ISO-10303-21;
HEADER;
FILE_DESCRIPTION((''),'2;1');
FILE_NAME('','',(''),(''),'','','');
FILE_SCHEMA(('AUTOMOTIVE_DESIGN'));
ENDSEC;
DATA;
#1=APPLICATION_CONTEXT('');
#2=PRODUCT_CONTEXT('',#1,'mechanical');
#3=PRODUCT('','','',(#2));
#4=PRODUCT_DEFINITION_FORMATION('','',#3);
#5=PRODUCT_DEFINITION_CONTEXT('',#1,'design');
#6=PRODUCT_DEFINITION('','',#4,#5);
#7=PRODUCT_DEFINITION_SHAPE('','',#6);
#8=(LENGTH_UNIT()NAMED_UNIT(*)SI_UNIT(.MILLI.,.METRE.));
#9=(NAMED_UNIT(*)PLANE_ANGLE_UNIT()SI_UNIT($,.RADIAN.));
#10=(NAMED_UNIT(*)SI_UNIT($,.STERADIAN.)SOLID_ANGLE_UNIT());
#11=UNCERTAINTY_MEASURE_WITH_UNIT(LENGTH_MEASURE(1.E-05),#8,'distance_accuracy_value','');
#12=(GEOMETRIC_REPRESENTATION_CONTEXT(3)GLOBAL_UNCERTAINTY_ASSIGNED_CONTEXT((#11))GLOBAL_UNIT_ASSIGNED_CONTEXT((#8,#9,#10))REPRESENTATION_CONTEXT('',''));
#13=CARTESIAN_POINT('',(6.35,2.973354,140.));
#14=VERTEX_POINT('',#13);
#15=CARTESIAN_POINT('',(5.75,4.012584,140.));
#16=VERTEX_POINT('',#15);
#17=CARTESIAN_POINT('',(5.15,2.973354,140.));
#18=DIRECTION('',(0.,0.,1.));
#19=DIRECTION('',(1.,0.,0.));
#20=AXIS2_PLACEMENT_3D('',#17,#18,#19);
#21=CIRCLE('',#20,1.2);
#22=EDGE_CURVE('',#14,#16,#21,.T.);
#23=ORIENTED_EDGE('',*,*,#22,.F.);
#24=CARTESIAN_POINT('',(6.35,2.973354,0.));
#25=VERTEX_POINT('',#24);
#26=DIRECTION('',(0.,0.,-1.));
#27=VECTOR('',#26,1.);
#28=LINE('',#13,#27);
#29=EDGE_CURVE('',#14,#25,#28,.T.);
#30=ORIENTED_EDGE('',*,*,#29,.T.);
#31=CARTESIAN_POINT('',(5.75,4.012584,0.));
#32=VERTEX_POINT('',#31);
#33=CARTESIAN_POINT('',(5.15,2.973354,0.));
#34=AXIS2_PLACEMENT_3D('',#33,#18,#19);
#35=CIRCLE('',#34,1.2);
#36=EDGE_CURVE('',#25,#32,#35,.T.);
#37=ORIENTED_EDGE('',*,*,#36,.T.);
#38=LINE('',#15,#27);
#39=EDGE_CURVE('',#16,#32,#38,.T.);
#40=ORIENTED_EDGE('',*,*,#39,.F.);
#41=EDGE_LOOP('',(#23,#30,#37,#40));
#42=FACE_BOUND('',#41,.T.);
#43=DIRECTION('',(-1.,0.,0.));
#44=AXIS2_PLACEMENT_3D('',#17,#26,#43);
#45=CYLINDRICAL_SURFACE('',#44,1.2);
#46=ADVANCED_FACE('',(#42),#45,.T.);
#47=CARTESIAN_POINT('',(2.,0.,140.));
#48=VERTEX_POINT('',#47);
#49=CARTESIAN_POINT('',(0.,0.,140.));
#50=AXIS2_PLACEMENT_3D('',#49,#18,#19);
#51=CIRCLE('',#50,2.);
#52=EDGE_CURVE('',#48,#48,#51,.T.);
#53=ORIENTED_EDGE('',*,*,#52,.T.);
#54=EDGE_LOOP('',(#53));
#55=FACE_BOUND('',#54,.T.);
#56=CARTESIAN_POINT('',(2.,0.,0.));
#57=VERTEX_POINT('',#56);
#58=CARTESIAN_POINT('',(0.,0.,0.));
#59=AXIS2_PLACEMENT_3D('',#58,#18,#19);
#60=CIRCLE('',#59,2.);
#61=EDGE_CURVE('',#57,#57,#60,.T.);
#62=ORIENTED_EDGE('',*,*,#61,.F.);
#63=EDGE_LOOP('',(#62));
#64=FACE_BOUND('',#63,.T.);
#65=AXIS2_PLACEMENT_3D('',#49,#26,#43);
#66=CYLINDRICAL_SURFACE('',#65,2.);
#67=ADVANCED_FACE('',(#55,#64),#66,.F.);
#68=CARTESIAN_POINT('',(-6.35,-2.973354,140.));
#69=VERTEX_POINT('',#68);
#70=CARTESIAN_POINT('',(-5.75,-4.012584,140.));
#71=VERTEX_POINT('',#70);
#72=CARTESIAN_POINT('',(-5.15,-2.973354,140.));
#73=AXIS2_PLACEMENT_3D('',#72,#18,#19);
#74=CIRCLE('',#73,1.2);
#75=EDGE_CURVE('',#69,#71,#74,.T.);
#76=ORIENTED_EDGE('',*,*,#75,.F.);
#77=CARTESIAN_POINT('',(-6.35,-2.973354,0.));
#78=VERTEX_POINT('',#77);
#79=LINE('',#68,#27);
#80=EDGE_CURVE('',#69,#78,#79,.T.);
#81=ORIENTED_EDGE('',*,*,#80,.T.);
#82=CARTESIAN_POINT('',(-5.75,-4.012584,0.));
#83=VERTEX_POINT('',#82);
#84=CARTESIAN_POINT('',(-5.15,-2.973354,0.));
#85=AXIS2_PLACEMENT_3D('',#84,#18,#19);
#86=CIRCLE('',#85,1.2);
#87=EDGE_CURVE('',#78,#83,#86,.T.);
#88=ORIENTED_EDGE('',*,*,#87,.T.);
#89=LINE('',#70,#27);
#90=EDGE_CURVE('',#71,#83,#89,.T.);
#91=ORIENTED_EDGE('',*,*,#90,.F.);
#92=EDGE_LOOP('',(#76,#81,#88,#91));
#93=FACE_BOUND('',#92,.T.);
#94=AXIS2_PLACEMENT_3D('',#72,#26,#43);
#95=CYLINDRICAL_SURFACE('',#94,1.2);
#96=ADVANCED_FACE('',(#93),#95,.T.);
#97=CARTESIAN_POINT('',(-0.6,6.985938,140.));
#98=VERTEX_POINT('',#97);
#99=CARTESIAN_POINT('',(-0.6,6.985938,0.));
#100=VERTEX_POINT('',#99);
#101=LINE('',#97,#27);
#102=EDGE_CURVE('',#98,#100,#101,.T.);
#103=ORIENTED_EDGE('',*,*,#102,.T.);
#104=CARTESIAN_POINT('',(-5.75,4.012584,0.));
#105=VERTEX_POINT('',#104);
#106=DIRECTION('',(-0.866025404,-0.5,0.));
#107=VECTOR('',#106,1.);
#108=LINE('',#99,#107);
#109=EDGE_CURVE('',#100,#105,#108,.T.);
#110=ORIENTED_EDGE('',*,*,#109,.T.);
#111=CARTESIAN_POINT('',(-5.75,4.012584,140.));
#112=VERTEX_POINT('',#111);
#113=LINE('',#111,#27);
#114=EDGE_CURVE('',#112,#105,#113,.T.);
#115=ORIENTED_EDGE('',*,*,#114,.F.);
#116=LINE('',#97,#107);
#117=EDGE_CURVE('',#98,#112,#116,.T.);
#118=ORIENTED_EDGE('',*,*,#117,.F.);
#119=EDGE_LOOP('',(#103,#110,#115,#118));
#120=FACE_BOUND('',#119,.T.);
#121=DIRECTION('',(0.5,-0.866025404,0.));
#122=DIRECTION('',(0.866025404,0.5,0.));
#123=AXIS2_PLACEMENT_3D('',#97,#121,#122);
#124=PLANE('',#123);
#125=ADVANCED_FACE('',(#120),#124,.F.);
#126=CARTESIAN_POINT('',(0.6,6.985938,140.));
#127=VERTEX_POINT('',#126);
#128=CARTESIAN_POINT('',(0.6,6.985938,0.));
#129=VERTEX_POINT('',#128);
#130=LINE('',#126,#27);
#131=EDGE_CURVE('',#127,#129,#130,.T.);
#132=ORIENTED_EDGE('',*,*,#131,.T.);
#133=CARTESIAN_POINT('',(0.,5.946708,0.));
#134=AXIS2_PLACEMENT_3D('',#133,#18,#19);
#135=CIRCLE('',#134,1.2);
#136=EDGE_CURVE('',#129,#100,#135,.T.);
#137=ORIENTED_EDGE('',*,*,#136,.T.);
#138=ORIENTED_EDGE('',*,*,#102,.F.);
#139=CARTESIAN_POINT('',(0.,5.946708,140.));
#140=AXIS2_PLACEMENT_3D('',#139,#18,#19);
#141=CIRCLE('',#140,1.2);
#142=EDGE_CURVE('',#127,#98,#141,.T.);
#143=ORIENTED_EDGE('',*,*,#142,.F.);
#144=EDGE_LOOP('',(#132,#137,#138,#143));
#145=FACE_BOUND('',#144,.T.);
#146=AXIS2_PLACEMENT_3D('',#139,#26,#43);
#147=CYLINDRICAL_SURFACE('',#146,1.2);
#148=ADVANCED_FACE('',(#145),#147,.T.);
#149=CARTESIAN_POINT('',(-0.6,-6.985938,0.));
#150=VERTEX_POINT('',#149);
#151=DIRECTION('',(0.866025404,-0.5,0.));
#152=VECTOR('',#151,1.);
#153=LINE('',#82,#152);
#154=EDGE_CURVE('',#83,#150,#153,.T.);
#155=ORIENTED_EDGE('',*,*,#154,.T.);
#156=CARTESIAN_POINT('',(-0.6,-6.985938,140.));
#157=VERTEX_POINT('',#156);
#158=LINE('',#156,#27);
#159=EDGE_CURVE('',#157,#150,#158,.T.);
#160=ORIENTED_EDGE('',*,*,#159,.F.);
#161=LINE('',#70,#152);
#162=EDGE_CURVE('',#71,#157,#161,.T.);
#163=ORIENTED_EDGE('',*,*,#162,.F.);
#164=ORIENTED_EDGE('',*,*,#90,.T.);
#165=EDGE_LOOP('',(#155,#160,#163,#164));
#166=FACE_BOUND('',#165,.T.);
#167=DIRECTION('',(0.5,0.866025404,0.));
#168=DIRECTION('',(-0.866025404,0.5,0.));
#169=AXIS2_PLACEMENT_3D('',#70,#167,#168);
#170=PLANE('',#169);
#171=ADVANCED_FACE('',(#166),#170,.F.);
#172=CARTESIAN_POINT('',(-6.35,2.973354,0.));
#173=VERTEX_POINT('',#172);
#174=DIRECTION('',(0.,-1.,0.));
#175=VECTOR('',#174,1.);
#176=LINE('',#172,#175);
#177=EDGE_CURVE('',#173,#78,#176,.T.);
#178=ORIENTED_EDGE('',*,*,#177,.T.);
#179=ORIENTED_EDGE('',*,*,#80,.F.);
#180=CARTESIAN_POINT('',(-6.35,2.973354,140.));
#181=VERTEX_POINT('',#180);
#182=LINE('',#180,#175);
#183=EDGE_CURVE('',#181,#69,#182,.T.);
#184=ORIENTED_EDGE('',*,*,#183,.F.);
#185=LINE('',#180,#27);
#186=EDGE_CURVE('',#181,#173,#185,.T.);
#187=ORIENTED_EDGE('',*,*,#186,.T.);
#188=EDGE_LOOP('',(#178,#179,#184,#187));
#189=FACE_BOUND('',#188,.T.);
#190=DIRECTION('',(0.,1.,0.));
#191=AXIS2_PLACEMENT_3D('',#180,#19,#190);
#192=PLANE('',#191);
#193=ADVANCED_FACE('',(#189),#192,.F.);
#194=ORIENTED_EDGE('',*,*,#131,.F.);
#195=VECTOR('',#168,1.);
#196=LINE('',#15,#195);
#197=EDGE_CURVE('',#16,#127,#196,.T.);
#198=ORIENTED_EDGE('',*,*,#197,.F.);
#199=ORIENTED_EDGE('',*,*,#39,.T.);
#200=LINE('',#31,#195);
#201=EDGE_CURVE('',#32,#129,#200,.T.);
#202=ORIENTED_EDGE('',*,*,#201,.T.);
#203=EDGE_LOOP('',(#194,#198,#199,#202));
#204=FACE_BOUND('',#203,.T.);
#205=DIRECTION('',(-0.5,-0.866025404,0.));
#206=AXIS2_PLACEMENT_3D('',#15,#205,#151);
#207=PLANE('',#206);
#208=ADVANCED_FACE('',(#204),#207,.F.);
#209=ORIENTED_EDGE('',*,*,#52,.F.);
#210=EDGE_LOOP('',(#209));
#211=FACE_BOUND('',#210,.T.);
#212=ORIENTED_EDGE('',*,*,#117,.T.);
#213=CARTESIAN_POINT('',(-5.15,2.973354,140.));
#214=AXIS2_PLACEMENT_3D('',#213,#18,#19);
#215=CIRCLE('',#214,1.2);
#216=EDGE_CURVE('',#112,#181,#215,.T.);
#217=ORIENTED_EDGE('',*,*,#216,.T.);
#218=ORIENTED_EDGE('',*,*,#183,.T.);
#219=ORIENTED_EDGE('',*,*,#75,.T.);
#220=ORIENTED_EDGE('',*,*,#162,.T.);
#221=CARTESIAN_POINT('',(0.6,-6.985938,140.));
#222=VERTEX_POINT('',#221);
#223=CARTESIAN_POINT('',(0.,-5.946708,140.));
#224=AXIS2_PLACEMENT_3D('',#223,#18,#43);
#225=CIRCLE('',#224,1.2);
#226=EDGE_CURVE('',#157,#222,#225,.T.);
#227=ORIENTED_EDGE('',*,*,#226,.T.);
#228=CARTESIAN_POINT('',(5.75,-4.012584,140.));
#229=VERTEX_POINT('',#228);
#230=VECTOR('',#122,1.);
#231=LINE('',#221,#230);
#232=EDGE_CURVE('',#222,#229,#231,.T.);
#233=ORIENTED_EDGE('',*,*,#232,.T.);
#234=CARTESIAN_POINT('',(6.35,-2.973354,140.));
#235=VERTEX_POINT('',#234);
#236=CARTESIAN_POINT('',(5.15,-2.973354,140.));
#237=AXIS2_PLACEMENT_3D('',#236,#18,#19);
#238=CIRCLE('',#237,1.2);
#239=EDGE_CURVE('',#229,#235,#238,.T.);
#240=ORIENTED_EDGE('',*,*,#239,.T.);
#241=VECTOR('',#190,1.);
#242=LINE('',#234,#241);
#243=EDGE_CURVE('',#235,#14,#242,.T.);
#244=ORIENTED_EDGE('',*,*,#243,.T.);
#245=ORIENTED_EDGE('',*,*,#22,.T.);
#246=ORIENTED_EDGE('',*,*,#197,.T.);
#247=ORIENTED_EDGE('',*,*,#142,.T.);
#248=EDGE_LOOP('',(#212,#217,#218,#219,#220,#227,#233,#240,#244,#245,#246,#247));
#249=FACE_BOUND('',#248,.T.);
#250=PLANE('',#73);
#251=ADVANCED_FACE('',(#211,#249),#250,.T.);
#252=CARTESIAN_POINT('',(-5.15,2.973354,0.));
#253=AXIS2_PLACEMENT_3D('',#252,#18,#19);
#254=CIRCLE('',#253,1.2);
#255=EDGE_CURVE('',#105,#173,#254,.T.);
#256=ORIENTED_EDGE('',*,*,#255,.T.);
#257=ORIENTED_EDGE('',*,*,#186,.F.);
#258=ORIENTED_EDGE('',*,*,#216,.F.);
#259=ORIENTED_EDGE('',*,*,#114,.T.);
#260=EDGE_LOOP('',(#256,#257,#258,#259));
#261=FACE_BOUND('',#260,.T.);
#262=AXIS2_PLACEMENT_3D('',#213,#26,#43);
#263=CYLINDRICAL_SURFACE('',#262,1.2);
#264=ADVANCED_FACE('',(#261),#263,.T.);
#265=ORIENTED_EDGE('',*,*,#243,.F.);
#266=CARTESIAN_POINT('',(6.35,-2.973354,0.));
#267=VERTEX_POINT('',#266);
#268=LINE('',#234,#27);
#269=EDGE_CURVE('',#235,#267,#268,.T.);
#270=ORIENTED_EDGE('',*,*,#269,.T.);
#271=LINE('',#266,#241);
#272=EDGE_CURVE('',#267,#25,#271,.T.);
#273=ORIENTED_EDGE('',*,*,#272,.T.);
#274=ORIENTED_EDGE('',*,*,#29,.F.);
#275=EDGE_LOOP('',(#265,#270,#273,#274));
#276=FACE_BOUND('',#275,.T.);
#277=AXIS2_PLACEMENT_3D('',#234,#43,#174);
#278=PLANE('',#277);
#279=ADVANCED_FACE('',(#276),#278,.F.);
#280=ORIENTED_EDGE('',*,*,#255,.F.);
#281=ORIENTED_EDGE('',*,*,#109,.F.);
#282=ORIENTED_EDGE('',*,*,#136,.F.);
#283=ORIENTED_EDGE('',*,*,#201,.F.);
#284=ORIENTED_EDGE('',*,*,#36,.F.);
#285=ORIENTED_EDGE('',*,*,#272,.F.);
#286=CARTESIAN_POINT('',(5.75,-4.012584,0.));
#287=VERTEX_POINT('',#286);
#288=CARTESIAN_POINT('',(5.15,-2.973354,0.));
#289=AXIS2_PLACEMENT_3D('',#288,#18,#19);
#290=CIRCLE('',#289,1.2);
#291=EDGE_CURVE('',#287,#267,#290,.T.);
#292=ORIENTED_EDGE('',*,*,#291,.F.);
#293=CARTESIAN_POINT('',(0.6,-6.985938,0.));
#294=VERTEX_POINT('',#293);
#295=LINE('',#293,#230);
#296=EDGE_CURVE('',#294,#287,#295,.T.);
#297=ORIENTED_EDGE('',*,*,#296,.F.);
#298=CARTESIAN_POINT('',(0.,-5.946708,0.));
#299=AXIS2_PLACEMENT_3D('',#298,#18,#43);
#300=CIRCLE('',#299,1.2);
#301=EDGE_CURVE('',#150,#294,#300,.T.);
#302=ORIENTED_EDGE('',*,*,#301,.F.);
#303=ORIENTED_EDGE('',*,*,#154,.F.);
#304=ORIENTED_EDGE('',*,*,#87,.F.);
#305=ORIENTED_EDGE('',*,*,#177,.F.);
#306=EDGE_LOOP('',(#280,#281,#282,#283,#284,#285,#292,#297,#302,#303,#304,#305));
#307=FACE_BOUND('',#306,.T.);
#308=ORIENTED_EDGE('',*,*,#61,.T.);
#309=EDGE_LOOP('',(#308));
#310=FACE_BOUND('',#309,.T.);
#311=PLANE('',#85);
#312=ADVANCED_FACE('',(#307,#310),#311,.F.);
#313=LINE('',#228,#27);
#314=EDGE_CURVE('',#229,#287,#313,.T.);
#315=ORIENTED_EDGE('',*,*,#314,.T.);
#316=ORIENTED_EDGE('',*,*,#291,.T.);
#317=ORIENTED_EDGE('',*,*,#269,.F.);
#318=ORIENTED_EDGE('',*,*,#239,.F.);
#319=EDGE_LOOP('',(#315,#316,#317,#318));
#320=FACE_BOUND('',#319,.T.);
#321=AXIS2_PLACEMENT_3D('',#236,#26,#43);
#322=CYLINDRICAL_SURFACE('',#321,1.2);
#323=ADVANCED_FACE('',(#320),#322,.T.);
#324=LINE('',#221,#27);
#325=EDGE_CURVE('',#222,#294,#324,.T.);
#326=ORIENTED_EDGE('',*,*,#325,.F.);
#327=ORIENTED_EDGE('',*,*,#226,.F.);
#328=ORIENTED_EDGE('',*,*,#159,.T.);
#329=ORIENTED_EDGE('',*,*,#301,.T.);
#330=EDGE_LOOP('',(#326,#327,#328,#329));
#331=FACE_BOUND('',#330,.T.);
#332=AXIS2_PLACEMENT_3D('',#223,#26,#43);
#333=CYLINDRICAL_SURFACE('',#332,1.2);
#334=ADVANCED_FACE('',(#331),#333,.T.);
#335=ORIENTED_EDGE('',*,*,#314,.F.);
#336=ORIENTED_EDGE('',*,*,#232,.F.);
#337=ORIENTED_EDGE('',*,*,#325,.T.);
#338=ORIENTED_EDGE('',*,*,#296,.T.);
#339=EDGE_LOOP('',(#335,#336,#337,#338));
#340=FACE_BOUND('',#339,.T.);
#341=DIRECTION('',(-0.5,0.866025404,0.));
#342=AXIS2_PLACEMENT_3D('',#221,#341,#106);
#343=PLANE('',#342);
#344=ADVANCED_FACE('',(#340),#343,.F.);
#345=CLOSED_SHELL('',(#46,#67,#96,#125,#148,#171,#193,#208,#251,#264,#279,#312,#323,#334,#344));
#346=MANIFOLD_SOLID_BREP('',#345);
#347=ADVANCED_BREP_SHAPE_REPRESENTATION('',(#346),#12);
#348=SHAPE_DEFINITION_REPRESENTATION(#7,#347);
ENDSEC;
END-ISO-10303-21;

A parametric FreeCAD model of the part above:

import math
import FreeCAD as App
import Part
import Sketcher

V = App.Vector
Q = App.Units.Quantity

doc = App.newDocument("Part")
body = doc.addObject("PartDesign::Body", "Body")

# Sketch on XY plane
sketch1 = body.newObject("Sketcher::SketchObject", "Sketch")
sketch1.AttachmentSupport = (doc.getObject("XY_Plane"), [""])
sketch1.MapMode = "FlatFace"
sketch1.addGeometry([
    Part.LineSegment(V(0.6, -7, 0), V(5.8, -4, 0)),  # 0
    Part.ArcOfCircle(Part.Circle(V(5.2, -3, 0), V(0, 0, 1), 1.2), math.radians(-60), math.radians(0)),  # 1
    Part.LineSegment(V(6.3, -3, 0), V(6.3, 3, 0)),  # 2
    Part.ArcOfCircle(Part.Circle(V(5.2, 3, 0), V(0, 0, 1), 1.2), math.radians(0), math.radians(60)),  # 3
    Part.LineSegment(V(5.8, 4, 0), V(0.6, 7, 0)),  # 4
    Part.ArcOfCircle(Part.Circle(V(0, 5.9, 0), V(0, 0, 1), 1.2), math.radians(60), math.radians(120)),  # 5
    Part.LineSegment(V(-0.6, 7, 0), V(-5.8, 4, 0)),  # 6
    Part.ArcOfCircle(Part.Circle(V(-5.2, 3, 0), V(0, 0, 1), 1.2), math.radians(120), math.radians(180)),  # 7
    Part.LineSegment(V(-6.3, 3, 0), V(-6.3, -3, 0)),  # 8
    Part.ArcOfCircle(Part.Circle(V(-5.2, -3, 0), V(0, 0, 1), 1.2), math.radians(180), math.radians(240)),  # 9
    Part.LineSegment(V(-5.8, -4, 0), V(-0.6, -7, 0)),  # 10
    Part.ArcOfCircle(Part.Circle(V(0, -5.9, 0), V(0, 0, 1), 1.2), math.radians(-120), math.radians(-60)),  # 11
    Part.Circle(V(0, 0, 0), V(0, 0, 1), 2),  # 12
], False)
sketch1.addConstraint([
    Sketcher.Constraint("Tangent", 0, 2, 1, 1),
    Sketcher.Constraint("Tangent", 1, 2, 2, 1),
    Sketcher.Constraint("Tangent", 2, 2, 3, 1),
    Sketcher.Constraint("Tangent", 3, 2, 4, 1),
    Sketcher.Constraint("Tangent", 4, 2, 5, 1),
    Sketcher.Constraint("Tangent", 5, 2, 6, 1),
    Sketcher.Constraint("Tangent", 6, 2, 7, 1),
    Sketcher.Constraint("Tangent", 7, 2, 8, 1),
    Sketcher.Constraint("Tangent", 8, 2, 9, 1),
    Sketcher.Constraint("Tangent", 9, 2, 10, 1),
    Sketcher.Constraint("Tangent", 10, 2, 11, 1),
    Sketcher.Constraint("Tangent", 11, 2, 0, 1),
    Sketcher.Constraint("Vertical", 2),
    Sketcher.Constraint("Vertical", 8),
    Sketcher.Constraint("Coincident", 12, 3, -1, 1),
    Sketcher.Constraint("Equal", 1, 3),
    Sketcher.Constraint("Equal", 3, 5),
    Sketcher.Constraint("Equal", 5, 7),
    Sketcher.Constraint("Equal", 7, 9),
    Sketcher.Constraint("Equal", 9, 11),
    Sketcher.Constraint("Symmetric", 1, 3, 7, 3, -1, 1),
    Sketcher.Constraint("Symmetric", 5, 3, 11, 3, -1, 1),
    Sketcher.Constraint("Symmetric", 4, 2, 5, 2, -2),
    Sketcher.Constraint("Parallel", 4, 10),
    Sketcher.Constraint("Diameter", 12, 4.0),
    Sketcher.Constraint("Radius", 1, 1.2),
    Sketcher.Constraint("Angle", 0, Q("30 deg")),
    Sketcher.Constraint("DistanceX", 7, 3, 3, 3, 10.3),
    Sketcher.Constraint("DistanceY", 2, 1, 2, 2, 5.946708),
])
pad1 = body.newObject("PartDesign::Pad", "Pad")
pad1.Profile = sketch1
pad1.Length = 140

doc.recompute()
